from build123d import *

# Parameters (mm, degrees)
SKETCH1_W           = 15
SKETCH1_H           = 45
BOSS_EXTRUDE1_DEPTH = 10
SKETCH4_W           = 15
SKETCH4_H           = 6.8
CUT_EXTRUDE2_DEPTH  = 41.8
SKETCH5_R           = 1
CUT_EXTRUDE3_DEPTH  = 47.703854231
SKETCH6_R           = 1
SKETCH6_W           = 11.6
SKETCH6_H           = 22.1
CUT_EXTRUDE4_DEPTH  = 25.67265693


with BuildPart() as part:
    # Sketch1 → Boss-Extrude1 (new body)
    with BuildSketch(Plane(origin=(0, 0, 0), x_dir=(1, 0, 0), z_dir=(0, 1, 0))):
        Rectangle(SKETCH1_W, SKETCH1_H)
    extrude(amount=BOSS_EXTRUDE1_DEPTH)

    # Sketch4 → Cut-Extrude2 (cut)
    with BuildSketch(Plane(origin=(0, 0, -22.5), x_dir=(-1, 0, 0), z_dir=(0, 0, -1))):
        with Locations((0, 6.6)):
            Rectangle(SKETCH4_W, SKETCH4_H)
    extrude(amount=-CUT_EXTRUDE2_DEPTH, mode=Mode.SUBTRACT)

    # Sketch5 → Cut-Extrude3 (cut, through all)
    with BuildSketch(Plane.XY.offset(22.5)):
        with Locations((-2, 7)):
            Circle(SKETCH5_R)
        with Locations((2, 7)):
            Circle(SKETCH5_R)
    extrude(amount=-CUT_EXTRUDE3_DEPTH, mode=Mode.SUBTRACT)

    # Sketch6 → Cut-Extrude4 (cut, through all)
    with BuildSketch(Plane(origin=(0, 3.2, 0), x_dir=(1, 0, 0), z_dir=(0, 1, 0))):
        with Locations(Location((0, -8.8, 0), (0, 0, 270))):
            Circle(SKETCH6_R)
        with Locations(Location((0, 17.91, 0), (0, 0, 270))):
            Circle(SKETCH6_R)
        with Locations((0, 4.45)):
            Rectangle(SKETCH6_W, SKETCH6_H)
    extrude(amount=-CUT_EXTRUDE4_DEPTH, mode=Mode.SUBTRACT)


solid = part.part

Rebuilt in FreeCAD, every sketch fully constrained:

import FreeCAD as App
import Part
import Sketcher
from FreeCAD import Vector


def add_polygon(sketch, points):
    """Adds a closed chain of lines whose ends are joined by coincident constraints."""
    first, n = sketch.GeometryCount, len(points)
    for a, b in zip(points, points[1:] + points[:1]):
        sketch.addGeometry(Part.LineSegment(App.Vector(*a, 0), App.Vector(*b, 0)), False)
    for i in range(n):
        sketch.addConstraint(Sketcher.Constraint("Coincident", first + i, 2, first + (i + 1) % n, 1))

doc = App.newDocument("Part")
body = doc.addObject("PartDesign::Body", "Body")

sketch1 = body.newObject("Sketcher::SketchObject", "Sketch")
sketch1.AttachmentSupport = (doc.getObject("XZ_Plane"), [""])
sketch1.MapMode = "FlatFace"
add_polygon(sketch1, [(-8, -22), (-8, 22), (8, 22), (8, -22)])
sketch1.addConstraint([
    Sketcher.Constraint("Vertical", 0),
    Sketcher.Constraint("Horizontal", 1),
    Sketcher.Constraint("Vertical", 2),
    Sketcher.Constraint("Horizontal", 3),
    Sketcher.Constraint("Symmetric", 0, 2, 2, 2, -1, 1),
    Sketcher.Constraint("DistanceX", 1, 1, 1, 2, 15.0),
    Sketcher.Constraint("DistanceY", 0, 1, 0, 2, 45.0),
])
pad1 = body.newObject("PartDesign::Pad", "Pad")
pad1.Profile = sketch1
pad1.Length = 10
pad1.Reversed = True

sketch2 = body.newObject("Sketcher::SketchObject", "Sketch001")
sketch2.AttachmentSupport = (doc.getObject("XY_Plane"), [""])
sketch2.MapMode = "FlatFace"
sketch2.AttachmentOffset = App.Placement(Vector(0, 0, -22.5), App.Rotation())
add_polygon(sketch2, [(8, 10), (8, 3), (-8, 3), (-8, 10)])
sketch2.addConstraint([
    Sketcher.Constraint("Vertical", 0),
    Sketcher.Constraint("Horizontal", 1),
    Sketcher.Constraint("Vertical", 2),
    Sketcher.Constraint("Horizontal", 3),
    Sketcher.Constraint("DistanceX", 1, 2, 1, 1, 15.0),
    Sketcher.Constraint("DistanceY", 0, 2, 0, 1, 6.8),
    Sketcher.Constraint("DistanceY", -1, 1, 2, 2, 10.0),
    Sketcher.Constraint("DistanceX", -1, 1, 0, 2, 7.5),
])
pocket1 = body.newObject("PartDesign::Pocket", "Pocket")
pocket1.Profile = sketch2
pocket1.Length = 41.8
pocket1.Reversed = True

sketch3 = body.newObject("Sketcher::SketchObject", "Sketch002")
sketch3.AttachmentSupport = (doc.getObject("XY_Plane"), [""])
sketch3.MapMode = "FlatFace"
sketch3.AttachmentOffset = App.Placement(Vector(0, 0, 22.5), App.Rotation())
sketch3.addGeometry([
    Part.Circle(Vector(-2, 7, 0), Vector(0, 0, 1), 1),
    Part.Circle(Vector(2, 7, 0), Vector(0, 0, 1), 1),
], False)
sketch3.addConstraint([
    Sketcher.Constraint("Equal", 0, 1),
    Sketcher.Constraint("Symmetric", 0, 3, 1, 3, -2),
    Sketcher.Constraint("Diameter", 0, 2.0),
    Sketcher.Constraint("DistanceX", 0, 3, -1, 1, 2.0),
    Sketcher.Constraint("DistanceY", -1, 1, 0, 3, 7.0),
])
pocket2 = body.newObject("PartDesign::Pocket", "Pocket001")
pocket2.Profile = sketch3
pocket2.Type = "ThroughAll"

sketch4 = body.newObject("Sketcher::SketchObject", "Sketch003")
sketch4.AttachmentSupport = (doc.getObject("XZ_Plane"), [""])
sketch4.MapMode = "FlatFace"
sketch4.AttachmentOffset = App.Placement(Vector(0, 0, -3.2), App.Rotation())
sketch4.addGeometry(Part.Circle(Vector(0, 8.8, 0), Vector(0, 0, 1), 1), False)
sketch4.addGeometry(Part.Circle(Vector(0, -17.9, 0), Vector(0, 0, 1), 1), False)
add_polygon(sketch4, [(-5.8, -15.5), (-5.8, 6.6), (5.8, 6.6), (5.8, -15.5)])
sketch4.addConstraint([
    Sketcher.Constraint("Vertical", 2),
    Sketcher.Constraint("Horizontal", 3),
    Sketcher.Constraint("Vertical", 4),
    Sketcher.Constraint("Horizontal", 5),
    Sketcher.Constraint("Equal", 0, 1),
    Sketcher.Constraint("PointOnObject", 0, 3, -2),
    Sketcher.Constraint("PointOnObject", 1, 3, -2),
    Sketcher.Constraint("Diameter", 0, 2.0),
    Sketcher.Constraint("DistanceX", 3, 1, 3, 2, 11.6),
    Sketcher.Constraint("DistanceY", 2, 1, 2, 2, 22.1),
    Sketcher.Constraint("DistanceY", -1, 1, 0, 3, 8.8),
    Sketcher.Constraint("DistanceX", 2, 2, -1, 1, 5.8),
    Sketcher.Constraint("DistanceY", -1, 1, 2, 2, 6.6),
    Sketcher.Constraint("DistanceY", 1, 3, -1, 1, 17.91),
])
pocket3 = body.newObject("PartDesign::Pocket", "Pocket002")
pocket3.Profile = sketch4
pocket3.Type = "ThroughAll"
pocket3.Reversed = True

doc.recompute()
